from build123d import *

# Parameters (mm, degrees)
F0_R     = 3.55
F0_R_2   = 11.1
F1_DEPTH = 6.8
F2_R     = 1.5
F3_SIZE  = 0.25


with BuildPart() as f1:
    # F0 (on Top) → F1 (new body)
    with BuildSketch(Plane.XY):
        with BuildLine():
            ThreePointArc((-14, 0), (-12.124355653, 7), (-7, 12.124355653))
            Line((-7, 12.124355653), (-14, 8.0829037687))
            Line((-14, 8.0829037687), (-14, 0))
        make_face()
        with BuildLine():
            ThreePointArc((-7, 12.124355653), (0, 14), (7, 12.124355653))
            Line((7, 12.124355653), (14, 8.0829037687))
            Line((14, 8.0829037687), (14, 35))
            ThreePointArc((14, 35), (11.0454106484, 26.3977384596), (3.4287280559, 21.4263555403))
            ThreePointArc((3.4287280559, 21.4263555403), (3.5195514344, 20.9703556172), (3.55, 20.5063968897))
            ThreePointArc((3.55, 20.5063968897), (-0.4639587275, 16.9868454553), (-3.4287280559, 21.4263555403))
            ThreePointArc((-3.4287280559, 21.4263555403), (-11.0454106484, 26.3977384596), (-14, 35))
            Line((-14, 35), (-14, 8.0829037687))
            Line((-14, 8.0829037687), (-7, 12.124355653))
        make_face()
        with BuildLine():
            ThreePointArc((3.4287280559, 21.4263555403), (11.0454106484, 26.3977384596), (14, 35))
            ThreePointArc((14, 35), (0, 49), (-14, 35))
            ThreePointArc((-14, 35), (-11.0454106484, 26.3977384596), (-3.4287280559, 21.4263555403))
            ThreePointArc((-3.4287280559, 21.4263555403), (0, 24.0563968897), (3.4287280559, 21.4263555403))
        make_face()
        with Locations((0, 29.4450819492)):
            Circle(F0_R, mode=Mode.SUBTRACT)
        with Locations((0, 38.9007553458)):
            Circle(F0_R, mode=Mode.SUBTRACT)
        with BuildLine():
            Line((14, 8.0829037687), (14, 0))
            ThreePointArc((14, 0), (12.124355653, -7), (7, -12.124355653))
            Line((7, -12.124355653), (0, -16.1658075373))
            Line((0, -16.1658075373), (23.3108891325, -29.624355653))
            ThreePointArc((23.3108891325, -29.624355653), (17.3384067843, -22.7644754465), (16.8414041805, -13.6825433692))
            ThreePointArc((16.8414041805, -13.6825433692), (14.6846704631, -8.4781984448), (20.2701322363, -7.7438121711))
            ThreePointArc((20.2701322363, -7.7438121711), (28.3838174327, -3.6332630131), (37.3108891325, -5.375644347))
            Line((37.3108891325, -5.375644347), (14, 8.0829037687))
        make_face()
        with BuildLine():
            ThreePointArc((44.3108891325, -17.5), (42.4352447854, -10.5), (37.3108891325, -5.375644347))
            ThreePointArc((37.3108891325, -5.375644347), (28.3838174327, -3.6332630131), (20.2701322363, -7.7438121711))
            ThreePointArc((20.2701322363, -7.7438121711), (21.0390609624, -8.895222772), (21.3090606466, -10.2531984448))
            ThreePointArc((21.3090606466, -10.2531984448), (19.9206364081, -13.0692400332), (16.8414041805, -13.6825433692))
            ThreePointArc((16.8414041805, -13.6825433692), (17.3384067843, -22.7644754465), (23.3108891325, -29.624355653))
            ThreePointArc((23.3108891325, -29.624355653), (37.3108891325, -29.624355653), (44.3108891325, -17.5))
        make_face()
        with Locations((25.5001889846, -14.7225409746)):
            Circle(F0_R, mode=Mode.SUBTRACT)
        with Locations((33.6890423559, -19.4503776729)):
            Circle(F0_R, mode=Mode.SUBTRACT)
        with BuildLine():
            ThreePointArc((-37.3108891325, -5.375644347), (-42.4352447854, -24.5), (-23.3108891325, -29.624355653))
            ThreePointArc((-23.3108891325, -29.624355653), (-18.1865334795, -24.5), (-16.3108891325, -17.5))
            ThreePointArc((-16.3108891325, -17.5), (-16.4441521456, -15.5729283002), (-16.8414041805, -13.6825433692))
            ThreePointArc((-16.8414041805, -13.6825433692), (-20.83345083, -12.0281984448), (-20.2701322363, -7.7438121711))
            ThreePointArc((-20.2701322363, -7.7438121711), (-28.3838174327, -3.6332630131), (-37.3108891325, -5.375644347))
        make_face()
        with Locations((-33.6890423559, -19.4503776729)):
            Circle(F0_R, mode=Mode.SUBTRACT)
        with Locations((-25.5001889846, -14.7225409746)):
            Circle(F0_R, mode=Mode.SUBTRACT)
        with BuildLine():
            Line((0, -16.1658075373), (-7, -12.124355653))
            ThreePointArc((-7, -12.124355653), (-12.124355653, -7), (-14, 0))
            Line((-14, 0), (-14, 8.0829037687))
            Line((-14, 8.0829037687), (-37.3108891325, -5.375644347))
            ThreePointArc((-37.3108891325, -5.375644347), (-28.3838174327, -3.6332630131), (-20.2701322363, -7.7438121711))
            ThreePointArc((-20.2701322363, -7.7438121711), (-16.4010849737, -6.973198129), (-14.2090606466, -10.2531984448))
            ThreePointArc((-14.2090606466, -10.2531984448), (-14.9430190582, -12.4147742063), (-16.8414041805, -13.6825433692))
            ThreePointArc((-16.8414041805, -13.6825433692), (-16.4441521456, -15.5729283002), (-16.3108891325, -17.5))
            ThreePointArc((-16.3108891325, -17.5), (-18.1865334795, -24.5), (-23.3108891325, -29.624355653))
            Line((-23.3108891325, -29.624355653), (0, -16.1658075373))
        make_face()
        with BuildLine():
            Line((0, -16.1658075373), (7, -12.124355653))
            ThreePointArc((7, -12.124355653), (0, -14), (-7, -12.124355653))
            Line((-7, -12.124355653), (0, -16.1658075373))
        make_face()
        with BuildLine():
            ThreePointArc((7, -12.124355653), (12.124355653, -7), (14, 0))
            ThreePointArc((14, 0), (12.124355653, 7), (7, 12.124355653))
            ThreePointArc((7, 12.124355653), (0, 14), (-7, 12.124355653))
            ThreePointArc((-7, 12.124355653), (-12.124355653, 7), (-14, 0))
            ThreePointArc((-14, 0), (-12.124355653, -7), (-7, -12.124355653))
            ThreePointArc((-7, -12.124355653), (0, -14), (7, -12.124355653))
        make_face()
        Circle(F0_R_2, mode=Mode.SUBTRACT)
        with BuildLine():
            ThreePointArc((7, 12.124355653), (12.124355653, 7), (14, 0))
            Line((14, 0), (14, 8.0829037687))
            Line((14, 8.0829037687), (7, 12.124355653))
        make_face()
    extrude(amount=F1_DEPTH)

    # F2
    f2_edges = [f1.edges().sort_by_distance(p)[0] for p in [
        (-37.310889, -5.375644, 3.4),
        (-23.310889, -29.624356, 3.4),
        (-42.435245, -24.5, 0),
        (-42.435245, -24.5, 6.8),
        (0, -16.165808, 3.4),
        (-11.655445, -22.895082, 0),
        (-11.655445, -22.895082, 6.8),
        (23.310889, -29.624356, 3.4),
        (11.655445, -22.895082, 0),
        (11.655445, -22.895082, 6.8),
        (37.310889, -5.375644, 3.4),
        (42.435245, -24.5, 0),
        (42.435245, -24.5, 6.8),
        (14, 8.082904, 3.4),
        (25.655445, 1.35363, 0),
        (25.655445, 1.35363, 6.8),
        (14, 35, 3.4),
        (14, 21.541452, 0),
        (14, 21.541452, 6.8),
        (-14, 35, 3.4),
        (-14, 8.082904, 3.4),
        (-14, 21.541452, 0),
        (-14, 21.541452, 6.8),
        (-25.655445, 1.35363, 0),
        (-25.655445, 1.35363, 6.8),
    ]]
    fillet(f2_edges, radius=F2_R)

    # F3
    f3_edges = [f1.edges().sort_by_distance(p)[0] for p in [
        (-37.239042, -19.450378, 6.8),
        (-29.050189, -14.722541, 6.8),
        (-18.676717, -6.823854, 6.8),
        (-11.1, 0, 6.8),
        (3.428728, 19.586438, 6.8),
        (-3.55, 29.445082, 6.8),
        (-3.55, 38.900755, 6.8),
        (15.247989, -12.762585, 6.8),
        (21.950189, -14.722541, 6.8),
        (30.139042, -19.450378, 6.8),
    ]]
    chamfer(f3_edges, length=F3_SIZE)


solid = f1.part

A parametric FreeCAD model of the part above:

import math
import FreeCAD as App
import Part
import Sketcher


def edges_at(feature, points):
    """Names of the edges that pass closest to the given points."""
    edges = feature.Shape.Edges
    near = lambda p: min(range(len(edges)), key=lambda i: edges[i].distToShape(Part.Vertex(*p))[0])
    return sorted({f"Edge{near(p) + 1}" for p in points})

doc = App.newDocument("Part")
body = doc.addObject("PartDesign::Body", "Body")

# Sketch on XY plane
sketch1 = body.newObject("Sketcher::SketchObject", "Sketch")
sketch1.AttachmentSupport = (doc.getObject("XY_Plane"), [""])
sketch1.MapMode = "FlatFace"
sketch1.addGeometry(Part.ArcOfCircle(Part.Circle(App.Vector(30.3, -17.5, 0), App.Vector(0, 0, 1), 14), math.radians(0), math.radians(60)), False)
sketch1.addGeometry(Part.LineSegment(App.Vector(37.3, -5.4, 0), App.Vector(14, 8.1, 0)), False)
sketch1.addGeometry(Part.LineSegment(App.Vector(14, 8.1, 0), App.Vector(14, 35, 0)), False)
sketch1.addGeometry(Part.ArcOfCircle(Part.Circle(App.Vector(0, 35, 0), App.Vector(0, 0, 1), 14), math.radians(0), math.radians(180)), False)
sketch1.addGeometry(Part.LineSegment(App.Vector(-14, 35, 0), App.Vector(-14, 8.1, 0)), False)
sketch1.addGeometry(Part.LineSegment(App.Vector(-14, 8.1, 0), App.Vector(-37.3, -5.4, 0)), False)
sketch1.addGeometry(Part.ArcOfCircle(Part.Circle(App.Vector(-30.3, -17.5, 0), App.Vector(0, 0, 1), 14), math.radians(120), math.radians(300)), False)
sketch1.addGeometry(Part.LineSegment(App.Vector(-23.3, -29.6, 0), App.Vector(0, -16.2, 0)), False)
sketch1.addGeometry(Part.LineSegment(App.Vector(0, -16.2, 0), App.Vector(23.3, -29.6, 0)), False)
sketch1.addGeometry(Part.ArcOfCircle(Part.Circle(App.Vector(30.3, -17.5, 0), App.Vector(0, 0, 1), 14), math.radians(-120), math.radians(0)), False)
sketch1.addGeometry(Part.Circle(App.Vector(-33.7, -19.5, 0), App.Vector(0, 0, 1), 3.5), False)
sketch1.addGeometry(Part.Circle(App.Vector(-25.5, -14.7, 0), App.Vector(0, 0, 1), 3.5), False)
sketch1.addGeometry(Part.ArcOfCircle(Part.Circle(App.Vector(-17.8, -10.3, 0), App.Vector(0, 0, 1), 3.5), math.radians(0), math.radians(135)), False)
sketch1.addGeometry(Part.ArcOfCircle(Part.Circle(App.Vector(-17.8, -10.3, 0), App.Vector(0, 0, 1), 3.5), math.radians(-75), math.radians(0)), False)
sketch1.addGeometry(Part.ArcOfCircle(Part.Circle(App.Vector(-17.8, -10.3, 0), App.Vector(0, 0, 1), 3.5), math.radians(135), math.radians(285)), False)
sketch1.addGeometry(Part.ArcOfCircle(Part.Circle(App.Vector(17.8, -10.3, 0), App.Vector(0, 0, 1), 3.5), math.radians(0), math.radians(45)), False)
sketch1.addGeometry(Part.ArcOfCircle(Part.Circle(App.Vector(17.8, -10.3, 0), App.Vector(0, 0, 1), 3.5), math.radians(-105), math.radians(0)), False)
sketch1.addGeometry(Part.ArcOfCircle(Part.Circle(App.Vector(17.8, -10.3, 0), App.Vector(0, 0, 1), 3.5), math.radians(45), math.radians(255)), False)
sketch1.addGeometry(Part.Circle(App.Vector(33.7, -19.5, 0), App.Vector(0, 0, 1), 3.5), False)
sketch1.addGeometry(Part.Circle(App.Vector(25.5, -14.7, 0), App.Vector(0, 0, 1), 3.5), False)
sketch1.addGeometry(Part.Circle(App.Vector(0, 0, 0), App.Vector(0, 0, 1), 11.1), False)
sketch1.addGeometry(Part.ArcOfCircle(Part.Circle(App.Vector(0, 20.5, 0), App.Vector(0, 0, 1), 3.5), math.radians(0), math.radians(15.02)), False)
sketch1.addGeometry(Part.ArcOfCircle(Part.Circle(App.Vector(0, 20.5, 0), App.Vector(0, 0, 1), 3.5), math.radians(165), math.radians(360)), False)
sketch1.addGeometry(Part.ArcOfCircle(Part.Circle(App.Vector(0, 20.5, 0), App.Vector(0, 0, 1), 3.5), math.radians(15), math.radians(165)), False)
sketch1.addGeometry(Part.Circle(App.Vector(0, 29.4, 0), App.Vector(0, 0, 1), 3.5), False)
sketch1.addGeometry(Part.Circle(App.Vector(0, 38.9, 0), App.Vector(0, 0, 1), 3.5), False)
sketch1.addConstraint(Sketcher.Constraint("Tangent", 0, 2, 1, 1))
sketch1.addConstraint(Sketcher.Constraint("Coincident", 1, 2, 2, 1))
sketch1.addConstraint(Sketcher.Constraint("Tangent", 2, 2, 3, 1))
sketch1.addConstraint(Sketcher.Constraint("Tangent", 3, 2, 4, 1))
sketch1.addConstraint(Sketcher.Constraint("Coincident", 4, 2, 5, 1))
sketch1.addConstraint(Sketcher.Constraint("Tangent", 5, 2, 6, 1))
sketch1.addConstraint(Sketcher.Constraint("Tangent", 6, 2, 7, 1))
sketch1.addConstraint(Sketcher.Constraint("Coincident", 7, 2, 8, 1))
sketch1.addConstraint(Sketcher.Constraint("Tangent", 8, 2, 9, 1))
sketch1.addConstraint(Sketcher.Constraint("Tangent", 9, 2, 0, 1))
sketch1.addConstraint(Sketcher.Constraint("Tangent", 12, 1, 13, 2))
sketch1.addConstraint(Sketcher.Constraint("Tangent", 13, 1, 14, 2))
sketch1.addConstraint(Sketcher.Constraint("Tangent", 14, 1, 12, 2))
sketch1.addConstraint(Sketcher.Constraint("Tangent", 15, 1, 16, 2))
sketch1.addConstraint(Sketcher.Constraint("Tangent", 16, 1, 17, 2))
sketch1.addConstraint(Sketcher.Constraint("Tangent", 17, 1, 15, 2))
sketch1.addConstraint(Sketcher.Constraint("Tangent", 21, 1, 22, 2))
sketch1.addConstraint(Sketcher.Constraint("Tangent", 22, 1, 23, 2))
sketch1.addConstraint(Sketcher.Constraint("Tangent", 23, 1, 21, 2))
sketch1.addConstraint(Sketcher.Constraint("Vertical", 2))
sketch1.addConstraint(Sketcher.Constraint("Vertical", 4))
sketch1.addConstraint(Sketcher.Constraint("Coincident", 20, 3, -1, 1))
sketch1.addConstraint(Sketcher.Constraint("Equal", 0, 3))
sketch1.addConstraint(Sketcher.Constraint("Equal", 3, 6))
sketch1.addConstraint(Sketcher.Constraint("Equal", 6, 9))
sketch1.addConstraint(Sketcher.Constraint("Equal", 10, 11))
sketch1.addConstraint(Sketcher.Constraint("Equal", 11, 12))
sketch1.addConstraint(Sketcher.Constraint("Equal", 14, 15))
sketch1.addConstraint(Sketcher.Constraint("Equal", 17, 18))
sketch1.addConstraint(Sketcher.Constraint("Equal", 18, 19))
sketch1.addConstraint(Sketcher.Constraint("Equal", 19, 21))
sketch1.addConstraint(Sketcher.Constraint("Equal", 23, 24))
sketch1.addConstraint(Sketcher.Constraint("Equal", 24, 25))
sketch1.addConstraint(Sketcher.Constraint("Symmetric", 0, 3, 6, 3, -2))
sketch1.addConstraint(Sketcher.Constraint("Symmetric", 12, 3, 15, 3, -2))
sketch1.addConstraint(Sketcher.Constraint("Symmetric", 10, 3, 18, 3, -2))
sketch1.addConstraint(Sketcher.Constraint("Symmetric", 11, 3, 19, 3, -2))
sketch1.addConstraint(Sketcher.Constraint("Symmetric", 1, 2, 4, 2, -2))
sketch1.addConstraint(Sketcher.Constraint("Symmetric", 22, 1, 23, 1, -2))
sketch1.addConstraint(Sketcher.Constraint("PointOnObject", 24, 3, -2))
sketch1.addConstraint(Sketcher.Constraint("PointOnObject", 25, 3, -2))
sketch1.addConstraint(Sketcher.Constraint("PointOnObject", 7, 2, -2))
sketch1.addConstraint(Sketcher.Constraint("Parallel", 5, 7))
sketch1.addConstraint(Sketcher.Constraint("Horizontal", 6, 3, 9, 2))
sketch1.addConstraint(Sketcher.Constraint("Horizontal", 17, 3, 12, 1))
sketch1.addConstraint(Sketcher.Constraint("Horizontal", 12, 1, 15, 1))
sketch1.addConstraint(Sketcher.Constraint("Horizontal", 13, 1, 16, 1))
sketch1.addConstraint(Sketcher.Constraint("Horizontal", 14, 1, 17, 1))
sketch1.addConstraint(Sketcher.Constraint("Horizontal", 23, 3, 21, 1))
sketch1.addConstraint(Sketcher.Constraint("Equal", 5, 7))
sketch1.addConstraint(Sketcher.Constraint("Radius", 0, 14.0))
sketch1.addConstraint(Sketcher.Constraint("Diameter", 10, 7.1))
sketch1.addConstraint(Sketcher.Constraint("Diameter", 20, 22.2))
sketch1.addConstraint(Sketcher.Constraint("DistanceY", -1, 1, 3, 3, 35.0))
sketch1.addConstraint(Sketcher.Constraint("DistanceY", 0, 3, -1, 1, 17.5))
sketch1.addConstraint(Sketcher.Constraint("DistanceY", 12, 3, -1, 1, 10.253198))
sketch1.addConstraint(Sketcher.Constraint("DistanceX", 6, 3, 11, 3, 4.8107))
sketch1.addConstraint(Sketcher.Constraint("DistanceY", 2, 1, 2, 2, 26.917096))
sketch1.addConstraint(Sketcher.Constraint("DistanceY", 11, 3, -1, 1, 14.722541))
sketch1.addConstraint(Sketcher.Constraint("DistanceX", 12, 3, -1, 1, 17.759061))
sketch1.addConstraint(Sketcher.Constraint("DistanceY", -1, 1, 24, 3, 29.445082))
sketch1.addConstraint(Sketcher.Constraint("DistanceX", 22, 1, -1, 1, 3.428728))
sketch1.addConstraint(Sketcher.Constraint("DistanceX", 10, 3, 0, 3, 63.999931))
sketch1.addConstraint(Sketcher.Constraint("DistanceY", 10, 3, 12, 3, 9.197179))
sketch1.addConstraint(Sketcher.Constraint("DistanceY", 21, 3, 25, 3, 18.394358))
sketch1.addConstraint(Sketcher.Constraint("DistanceX", 14, 1, 12, 3, 2.511072))
sketch1.addConstraint(Sketcher.Constraint("DistanceX", 14, 1, 13, 1, 3.428728))
sketch1.addConstraint(Sketcher.Constraint("DistanceY", -1, 1, 21, 3, 20.506397))
pad1 = body.newObject("PartDesign::Pad", "Pad")
pad1.Profile = sketch1
pad1.Length = 6.8
doc.recompute()

fillet = body.newObject("PartDesign::Fillet", "Fillet")
fillet.Base = (pad1, edges_at(pad1, [
    (-37.311, -5.376, 3.4),
    (-23.311, -29.624, 3.4),
    (-42.435, -24.5, 0),
    (-42.435, -24.5, 6.8),
    (0, -16.166, 3.4),
    (-11.655, -22.895, 0),
    (-11.655, -22.895, 6.8),
    (23.311, -29.624, 3.4),
    (11.655, -22.895, 0),
    (11.655, -22.895, 6.8),
    (37.311, -5.376, 3.4),
    (37.311, -29.624, 0),
    (37.311, -29.624, 6.8),
    (14, 8.083, 3.4),
    (25.655, 1.354, 0),
    (25.655, 1.354, 6.8),
    (14, 35, 3.4),
    (14, 21.541, 0),
    (14, 21.541, 6.8),
    (-14, 35, 3.4),
    (-14, 8.083, 3.4),
    (-14, 21.541, 0),
    (-14, 21.541, 6.8),
    (-25.655, 1.354, 0),
    (-25.655, 1.354, 6.8),
]))
fillet.Radius = 1.5
doc.recompute()

chamfer = body.newObject("PartDesign::Chamfer", "Chamfer")
chamfer.Base = (fillet, edges_at(fillet, [
    (-37.239, -19.45, 6.8),
    (-29.05, -14.723, 6.8),
    (-16.401, -6.973, 6.8),
    (-11.1, 0, 6.8),
    (-0.464, 16.987, 6.8),
    (-3.55, 29.445, 6.8),
    (-3.55, 38.901, 6.8),
    (14.685, -8.478, 6.8),
    (21.95, -14.723, 6.8),
    (30.139, -19.45, 6.8),
]))
chamfer.Size = 0.25

doc.recompute()
